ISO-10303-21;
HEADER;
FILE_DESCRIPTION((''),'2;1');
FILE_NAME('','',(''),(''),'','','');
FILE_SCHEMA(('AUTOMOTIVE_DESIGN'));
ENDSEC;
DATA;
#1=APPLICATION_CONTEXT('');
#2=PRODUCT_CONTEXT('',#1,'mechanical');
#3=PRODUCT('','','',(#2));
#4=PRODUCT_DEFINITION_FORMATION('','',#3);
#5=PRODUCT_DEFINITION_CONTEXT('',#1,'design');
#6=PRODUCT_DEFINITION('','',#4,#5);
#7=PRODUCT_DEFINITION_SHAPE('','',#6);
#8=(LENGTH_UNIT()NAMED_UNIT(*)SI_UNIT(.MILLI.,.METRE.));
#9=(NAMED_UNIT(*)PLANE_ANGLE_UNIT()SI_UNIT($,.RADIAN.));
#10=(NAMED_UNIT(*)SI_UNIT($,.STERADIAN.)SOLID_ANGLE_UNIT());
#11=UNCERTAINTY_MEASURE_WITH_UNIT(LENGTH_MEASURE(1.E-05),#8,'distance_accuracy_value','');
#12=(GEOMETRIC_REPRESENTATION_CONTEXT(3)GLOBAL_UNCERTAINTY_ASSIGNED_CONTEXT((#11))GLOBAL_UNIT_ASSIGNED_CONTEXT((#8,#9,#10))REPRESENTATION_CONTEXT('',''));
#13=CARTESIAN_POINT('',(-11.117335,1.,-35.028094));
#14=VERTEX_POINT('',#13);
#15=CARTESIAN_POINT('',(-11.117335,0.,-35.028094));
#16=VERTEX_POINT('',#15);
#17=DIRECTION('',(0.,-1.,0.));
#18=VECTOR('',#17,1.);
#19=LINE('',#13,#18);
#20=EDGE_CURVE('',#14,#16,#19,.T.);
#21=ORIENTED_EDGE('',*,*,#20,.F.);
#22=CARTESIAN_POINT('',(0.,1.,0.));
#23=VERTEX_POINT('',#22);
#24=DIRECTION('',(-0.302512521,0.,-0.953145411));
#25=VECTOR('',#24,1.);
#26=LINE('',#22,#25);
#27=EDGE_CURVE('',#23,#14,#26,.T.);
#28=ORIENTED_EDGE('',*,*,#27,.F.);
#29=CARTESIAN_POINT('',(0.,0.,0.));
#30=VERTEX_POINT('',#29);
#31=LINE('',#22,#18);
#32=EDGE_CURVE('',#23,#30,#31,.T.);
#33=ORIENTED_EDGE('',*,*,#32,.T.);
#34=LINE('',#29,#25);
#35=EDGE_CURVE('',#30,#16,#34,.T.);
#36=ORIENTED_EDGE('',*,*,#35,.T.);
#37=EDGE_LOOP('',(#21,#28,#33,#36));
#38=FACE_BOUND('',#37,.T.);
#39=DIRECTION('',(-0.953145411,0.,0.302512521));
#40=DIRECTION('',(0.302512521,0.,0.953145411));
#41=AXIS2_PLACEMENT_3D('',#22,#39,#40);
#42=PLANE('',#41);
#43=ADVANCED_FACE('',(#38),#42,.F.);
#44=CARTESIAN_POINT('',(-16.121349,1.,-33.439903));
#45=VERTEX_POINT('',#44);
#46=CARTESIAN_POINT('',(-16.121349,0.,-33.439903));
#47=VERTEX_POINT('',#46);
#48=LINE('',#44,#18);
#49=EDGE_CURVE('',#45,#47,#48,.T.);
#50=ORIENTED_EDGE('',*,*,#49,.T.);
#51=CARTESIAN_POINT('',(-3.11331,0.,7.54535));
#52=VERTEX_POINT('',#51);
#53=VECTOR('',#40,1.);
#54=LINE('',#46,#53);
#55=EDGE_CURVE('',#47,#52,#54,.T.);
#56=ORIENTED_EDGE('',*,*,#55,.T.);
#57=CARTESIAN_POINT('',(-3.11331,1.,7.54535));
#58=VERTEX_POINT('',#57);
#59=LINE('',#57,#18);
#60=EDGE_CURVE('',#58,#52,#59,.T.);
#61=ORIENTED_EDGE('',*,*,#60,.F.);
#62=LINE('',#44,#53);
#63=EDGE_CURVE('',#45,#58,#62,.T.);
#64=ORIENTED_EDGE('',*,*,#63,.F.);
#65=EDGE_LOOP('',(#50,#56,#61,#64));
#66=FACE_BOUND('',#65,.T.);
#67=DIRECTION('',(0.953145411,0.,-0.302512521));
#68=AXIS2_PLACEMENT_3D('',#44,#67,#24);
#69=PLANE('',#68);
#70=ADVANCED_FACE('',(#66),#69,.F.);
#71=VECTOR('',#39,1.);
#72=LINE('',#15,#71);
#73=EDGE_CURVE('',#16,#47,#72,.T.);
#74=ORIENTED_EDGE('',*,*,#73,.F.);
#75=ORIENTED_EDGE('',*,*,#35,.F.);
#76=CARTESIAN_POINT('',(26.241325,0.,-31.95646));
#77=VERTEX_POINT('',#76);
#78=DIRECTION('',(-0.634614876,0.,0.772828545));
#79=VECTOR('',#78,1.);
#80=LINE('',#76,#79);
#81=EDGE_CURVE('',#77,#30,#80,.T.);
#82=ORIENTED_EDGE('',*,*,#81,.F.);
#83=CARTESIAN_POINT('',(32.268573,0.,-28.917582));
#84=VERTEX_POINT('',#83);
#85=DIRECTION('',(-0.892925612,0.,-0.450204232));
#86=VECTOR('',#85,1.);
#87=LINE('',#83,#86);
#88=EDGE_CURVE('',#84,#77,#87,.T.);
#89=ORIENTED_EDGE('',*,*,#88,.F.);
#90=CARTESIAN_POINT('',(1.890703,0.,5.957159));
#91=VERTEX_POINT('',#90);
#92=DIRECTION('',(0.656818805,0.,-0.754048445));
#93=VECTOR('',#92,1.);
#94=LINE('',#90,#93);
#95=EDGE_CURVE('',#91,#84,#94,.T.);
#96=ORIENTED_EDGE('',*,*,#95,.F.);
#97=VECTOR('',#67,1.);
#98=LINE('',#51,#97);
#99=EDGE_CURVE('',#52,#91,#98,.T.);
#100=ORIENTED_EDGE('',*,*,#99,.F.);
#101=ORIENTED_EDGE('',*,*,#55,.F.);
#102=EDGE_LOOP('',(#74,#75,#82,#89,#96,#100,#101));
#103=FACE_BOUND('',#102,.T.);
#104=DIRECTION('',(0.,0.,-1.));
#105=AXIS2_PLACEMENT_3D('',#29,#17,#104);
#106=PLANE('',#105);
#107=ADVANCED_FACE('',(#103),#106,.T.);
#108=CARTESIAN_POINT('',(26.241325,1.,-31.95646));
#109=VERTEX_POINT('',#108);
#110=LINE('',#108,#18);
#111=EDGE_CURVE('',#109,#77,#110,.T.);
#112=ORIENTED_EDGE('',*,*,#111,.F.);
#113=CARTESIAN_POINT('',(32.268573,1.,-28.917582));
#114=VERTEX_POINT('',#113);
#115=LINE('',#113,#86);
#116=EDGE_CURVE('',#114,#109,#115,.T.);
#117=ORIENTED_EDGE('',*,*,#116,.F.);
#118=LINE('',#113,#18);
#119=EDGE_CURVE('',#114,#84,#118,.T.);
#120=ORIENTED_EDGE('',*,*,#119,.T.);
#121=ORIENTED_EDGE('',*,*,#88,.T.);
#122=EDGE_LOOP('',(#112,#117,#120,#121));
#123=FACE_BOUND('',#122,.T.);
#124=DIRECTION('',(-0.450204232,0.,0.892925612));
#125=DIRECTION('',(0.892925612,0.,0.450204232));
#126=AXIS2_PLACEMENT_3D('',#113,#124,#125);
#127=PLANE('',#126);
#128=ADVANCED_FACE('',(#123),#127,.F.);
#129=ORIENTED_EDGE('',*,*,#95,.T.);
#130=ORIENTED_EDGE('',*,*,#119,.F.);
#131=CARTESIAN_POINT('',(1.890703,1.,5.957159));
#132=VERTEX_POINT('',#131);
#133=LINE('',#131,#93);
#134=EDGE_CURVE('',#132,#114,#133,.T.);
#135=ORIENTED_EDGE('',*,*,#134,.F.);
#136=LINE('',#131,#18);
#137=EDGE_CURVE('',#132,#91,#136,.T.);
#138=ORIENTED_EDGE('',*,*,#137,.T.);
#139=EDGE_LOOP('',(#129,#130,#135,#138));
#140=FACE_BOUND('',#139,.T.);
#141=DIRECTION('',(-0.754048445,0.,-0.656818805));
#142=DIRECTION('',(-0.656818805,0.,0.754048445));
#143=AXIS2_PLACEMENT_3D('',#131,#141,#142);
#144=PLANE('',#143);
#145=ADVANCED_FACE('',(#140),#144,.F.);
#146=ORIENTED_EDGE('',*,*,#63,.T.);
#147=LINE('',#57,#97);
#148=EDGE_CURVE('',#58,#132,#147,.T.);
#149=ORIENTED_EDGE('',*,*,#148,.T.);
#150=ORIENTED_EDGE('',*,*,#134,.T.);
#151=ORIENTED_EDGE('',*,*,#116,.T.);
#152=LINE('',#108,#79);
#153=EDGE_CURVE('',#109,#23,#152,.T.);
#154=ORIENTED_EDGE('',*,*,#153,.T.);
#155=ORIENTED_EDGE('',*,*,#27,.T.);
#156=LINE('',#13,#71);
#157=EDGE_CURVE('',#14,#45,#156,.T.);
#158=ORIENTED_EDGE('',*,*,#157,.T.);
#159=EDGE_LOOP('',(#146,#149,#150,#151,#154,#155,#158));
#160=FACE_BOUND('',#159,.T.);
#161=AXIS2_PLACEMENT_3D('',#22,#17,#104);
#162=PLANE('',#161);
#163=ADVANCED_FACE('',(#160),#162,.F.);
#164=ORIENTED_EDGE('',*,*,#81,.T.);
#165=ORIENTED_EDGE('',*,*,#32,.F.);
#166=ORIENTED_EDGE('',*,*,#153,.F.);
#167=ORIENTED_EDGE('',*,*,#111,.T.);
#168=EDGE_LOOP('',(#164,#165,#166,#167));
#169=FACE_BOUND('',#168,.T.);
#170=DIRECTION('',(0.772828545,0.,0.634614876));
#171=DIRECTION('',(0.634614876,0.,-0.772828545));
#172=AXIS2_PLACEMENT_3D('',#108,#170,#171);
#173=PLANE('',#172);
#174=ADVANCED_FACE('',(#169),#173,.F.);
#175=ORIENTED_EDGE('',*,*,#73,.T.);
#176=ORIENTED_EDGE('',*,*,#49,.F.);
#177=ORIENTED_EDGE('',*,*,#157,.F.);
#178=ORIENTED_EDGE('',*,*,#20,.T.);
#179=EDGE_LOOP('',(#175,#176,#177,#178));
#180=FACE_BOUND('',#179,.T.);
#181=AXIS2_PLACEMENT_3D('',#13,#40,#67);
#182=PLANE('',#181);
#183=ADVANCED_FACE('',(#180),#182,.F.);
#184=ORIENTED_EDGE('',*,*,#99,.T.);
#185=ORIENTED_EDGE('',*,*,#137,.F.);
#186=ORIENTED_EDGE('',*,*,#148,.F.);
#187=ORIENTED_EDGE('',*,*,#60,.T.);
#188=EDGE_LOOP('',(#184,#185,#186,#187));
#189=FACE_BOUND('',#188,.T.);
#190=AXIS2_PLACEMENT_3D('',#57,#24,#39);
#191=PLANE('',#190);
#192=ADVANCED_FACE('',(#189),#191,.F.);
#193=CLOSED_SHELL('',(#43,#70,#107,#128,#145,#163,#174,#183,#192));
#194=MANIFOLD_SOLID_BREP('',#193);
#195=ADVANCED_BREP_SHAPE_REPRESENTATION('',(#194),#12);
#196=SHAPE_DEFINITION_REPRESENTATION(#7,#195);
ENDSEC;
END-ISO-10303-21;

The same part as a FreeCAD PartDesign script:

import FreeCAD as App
import Part
import Sketcher

V = App.Vector

doc = App.newDocument("Part")
body = doc.addObject("PartDesign::Body", "Body")

# Sketch on XZ plane
sketch1 = body.newObject("Sketcher::SketchObject", "Sketch")
sketch1.AttachmentSupport = (doc.getObject("XZ_Plane"), [""])
sketch1.MapMode = "FlatFace"
sketch1.addGeometry(Part.LineSegment(V(0, 0, 0), V(-11.117335, -35.028094, 0)), False)
sketch1.addGeometry(Part.LineSegment(V(-11.117335, -35.028094, 0), V(-16.121349, -33.439903, 0)), False)
sketch1.addGeometry(Part.LineSegment(V(-16.121349, -33.439903, 0), V(-3.11331, 7.54535, 0)), False)
sketch1.addGeometry(Part.LineSegment(V(-3.11331, 7.54535, 0), V(1.890703, 5.957159, 0)), False)
sketch1.addGeometry(Part.LineSegment(V(1.890703, 5.957159, 0), V(32.268573, -28.917582, 0)), False)
sketch1.addGeometry(Part.LineSegment(V(32.268573, -28.917582, 0), V(26.241325, -31.95646, 0)), False)
sketch1.addGeometry(Part.LineSegment(V(26.241325, -31.95646, 0), V(0, 0, 0)), False)
sketch1.addConstraint(Sketcher.Constraint("Coincident", 0, 2, 1, 1))
sketch1.addConstraint(Sketcher.Constraint("Coincident", 1, 2, 2, 1))
sketch1.addConstraint(Sketcher.Constraint("Coincident", 2, 2, 3, 1))
sketch1.addConstraint(Sketcher.Constraint("Coincident", 3, 2, 4, 1))
sketch1.addConstraint(Sketcher.Constraint("Coincident", 4, 2, 5, 1))
sketch1.addConstraint(Sketcher.Constraint("Coincident", 5, 2, 6, 1))
sketch1.addConstraint(Sketcher.Constraint("Coincident", 6, 2, 0, 1))
sketch1.addConstraint(Sketcher.Constraint("Coincident", 6, 2, -1, 1))
sketch1.addConstraint(Sketcher.Constraint("Perpendicular", 0, 1))
sketch1.addConstraint(Sketcher.Constraint("Perpendicular", 1, 2))
sketch1.addConstraint(Sketcher.Constraint("Perpendicular", 2, 3))
sketch1.addConstraint(Sketcher.Constraint("Equal", 1, 3))
sketch1.addConstraint(Sketcher.Constraint("Distance", 2, 43.0))
sketch1.addConstraint(Sketcher.Constraint("Distance", 0, 36.75))
sketch1.addConstraint(Sketcher.Constraint("Distance", 1, 5.25))
sketch1.addConstraint(Sketcher.Constraint("Distance", 4, 46.25))
sketch1.addConstraint(Sketcher.Constraint("Distance", 5, 6.75))
sketch1.addConstraint(Sketcher.Constraint("Distance", 6, 41.35))
sketch1.addConstraint(Sketcher.Constraint("DistanceX", 1, 2, -1, 1, 16.121349))
sketch1.addConstraint(Sketcher.Constraint("DistanceY", 4, 2, -1, 1, 28.917582))
pad1 = body.newObject("PartDesign::Pad", "Pad")
pad1.Profile = sketch1
pad1.Length = 1
pad1.Reversed = True

doc.recompute()
